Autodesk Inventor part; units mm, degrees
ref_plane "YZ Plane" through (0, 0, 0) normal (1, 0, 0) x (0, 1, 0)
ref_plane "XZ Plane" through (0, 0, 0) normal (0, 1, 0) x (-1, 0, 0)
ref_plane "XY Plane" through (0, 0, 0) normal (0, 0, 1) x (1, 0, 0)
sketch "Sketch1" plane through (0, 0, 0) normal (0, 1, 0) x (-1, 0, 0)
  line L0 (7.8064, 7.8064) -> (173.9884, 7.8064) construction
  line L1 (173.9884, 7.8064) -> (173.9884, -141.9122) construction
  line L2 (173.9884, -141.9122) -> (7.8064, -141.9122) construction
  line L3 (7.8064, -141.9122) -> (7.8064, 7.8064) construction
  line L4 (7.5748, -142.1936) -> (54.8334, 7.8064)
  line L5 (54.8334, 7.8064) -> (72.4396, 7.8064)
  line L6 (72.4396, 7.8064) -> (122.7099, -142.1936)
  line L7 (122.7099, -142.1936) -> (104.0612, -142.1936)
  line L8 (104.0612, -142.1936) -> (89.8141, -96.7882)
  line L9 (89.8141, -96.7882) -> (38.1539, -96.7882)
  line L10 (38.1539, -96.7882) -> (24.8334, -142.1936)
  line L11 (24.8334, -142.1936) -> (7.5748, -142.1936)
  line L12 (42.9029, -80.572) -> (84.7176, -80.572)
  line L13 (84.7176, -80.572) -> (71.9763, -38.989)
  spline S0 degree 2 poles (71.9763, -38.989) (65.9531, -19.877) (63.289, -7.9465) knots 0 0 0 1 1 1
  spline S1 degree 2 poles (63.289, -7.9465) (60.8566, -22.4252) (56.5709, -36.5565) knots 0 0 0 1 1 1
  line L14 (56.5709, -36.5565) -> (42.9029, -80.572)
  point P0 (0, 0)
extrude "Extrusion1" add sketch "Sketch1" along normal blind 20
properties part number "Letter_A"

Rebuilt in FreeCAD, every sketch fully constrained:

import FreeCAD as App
import Part
import Sketcher

V = App.Vector
Q = App.Units.Quantity

doc = App.newDocument("Part")
body = doc.addObject("PartDesign::Body", "Body")

# Sketch on XZ plane
sketch1 = body.newObject("Sketcher::SketchObject", "Sketch")
sketch1.AttachmentSupport = (doc.getObject("XZ_Plane"), [""])
sketch1.MapMode = "FlatFace"
sketch1.addGeometry([
    Part.LineSegment(V(-54.8334, 7.8064, 0), V(-7.5748, -142.1936, 0)),  # 0
    Part.LineSegment(V(-7.5748, -142.1936, 0), V(-24.8334, -142.1936, 0)),  # 1
    Part.LineSegment(V(-24.8334, -142.1936, 0), V(-38.1539, -96.7882, 0)),  # 2
    Part.LineSegment(V(-38.1539, -96.7882, 0), V(-89.8141, -96.7882, 0)),  # 3
    Part.LineSegment(V(-89.8141, -96.7882, 0), V(-104.0612, -142.1936, 0)),  # 4
    Part.LineSegment(V(-104.0612, -142.1936, 0), V(-122.7099, -142.1936, 0)),  # 5
    Part.LineSegment(V(-122.7099, -142.1936, 0), V(-72.4396, 7.8064, 0)),  # 6
    Part.LineSegment(V(-72.4396, 7.8064, 0), V(-54.8334, 7.8064, 0)),  # 7
    Part.LineSegment(V(-84.7176, -80.572, 0), V(-42.9029, -80.572, 0)),  # 8
    Part.LineSegment(V(-42.9029, -80.572, 0), V(-56.5709, -36.5565, 0)),  # 9
    Part.BSplineCurve([V(-63.289, -7.9465, 0), V(-60.8566, -22.4252, 0), V(-56.5709, -36.5565, 0)], [3, 3], [0, 1], False, 2, [1, 1, 1], False),  # 10
    Part.BSplineCurve([V(-71.9763, -38.989, 0), V(-65.9531, -19.877, 0), V(-63.289, -7.9465, 0)], [3, 3], [0, 1], False, 2, [1, 1, 1], False),  # 11
    Part.LineSegment(V(-71.9763, -38.989, 0), V(-84.7176, -80.572, 0)),  # 12
], False)
sketch1.addConstraint([
    Sketcher.Constraint("Block", 10),
    Sketcher.Constraint("Block", 11),
    Sketcher.Constraint("Coincident", 0, 2, 1, 1),
    Sketcher.Constraint("Coincident", 1, 2, 2, 1),
    Sketcher.Constraint("Coincident", 2, 2, 3, 1),
    Sketcher.Constraint("Coincident", 3, 2, 4, 1),
    Sketcher.Constraint("Coincident", 4, 2, 5, 1),
    Sketcher.Constraint("Coincident", 5, 2, 6, 1),
    Sketcher.Constraint("Coincident", 6, 2, 7, 1),
    Sketcher.Constraint("Coincident", 7, 2, 0, 1),
    Sketcher.Constraint("Coincident", 8, 2, 9, 1),
    Sketcher.Constraint("Coincident", 9, 2, 10, 2),
    Sketcher.Constraint("Coincident", 11, 1, 12, 1),
    Sketcher.Constraint("Coincident", 12, 2, 8, 1),
    Sketcher.Constraint("Horizontal", 1),
    Sketcher.Constraint("Horizontal", 3),
    Sketcher.Constraint("Horizontal", 5),
    Sketcher.Constraint("Horizontal", 7),
    Sketcher.Constraint("Horizontal", 8),
    Sketcher.Constraint("Horizontal", 1, 2, 4, 2),
    Sketcher.Constraint("DistanceY", 4, 2, 6, 2, Q("150 mm")),
    Sketcher.Constraint("DistanceX", 7, 2, 1, 2, Q("30 mm")),
    Sketcher.Constraint("Angle", 2, Q("106.35 deg")),
    Sketcher.Constraint("Angle", 4, Q("-107.4206 deg")),
    Sketcher.Constraint("Angle", 9, Q("107.251 deg")),
    Sketcher.Constraint("DistanceX", 5, 2, -1, 1, Q("122.71 mm")),
    Sketcher.Constraint("Distance", 2, Q("47.319 mm")),
    Sketcher.Constraint("DistanceX", 1, 2, 1, 1, Q("17.2586 mm")),
    Sketcher.Constraint("DistanceX", 3, 2, 3, 1, Q("51.6602 mm")),
    Sketcher.Constraint("DistanceX", 5, 2, 5, 1, Q("18.6487 mm")),
    Sketcher.Constraint("DistanceX", 7, 1, 7, 2, Q("17.6062 mm")),
    Sketcher.Constraint("DistanceX", 8, 1, 8, 2, Q("41.8147 mm")),
    Sketcher.Constraint("DistanceX", 8, 2, -1, 1, Q("42.903 mm")),
    Sketcher.Constraint("DistanceY", 9, 2, 7, 2, Q("44.363 mm")),
])
pad1 = body.newObject("PartDesign::Pad", "Pad")
pad1.Profile = sketch1
pad1.Length = 20
pad1.Reversed = True

doc.recompute()
